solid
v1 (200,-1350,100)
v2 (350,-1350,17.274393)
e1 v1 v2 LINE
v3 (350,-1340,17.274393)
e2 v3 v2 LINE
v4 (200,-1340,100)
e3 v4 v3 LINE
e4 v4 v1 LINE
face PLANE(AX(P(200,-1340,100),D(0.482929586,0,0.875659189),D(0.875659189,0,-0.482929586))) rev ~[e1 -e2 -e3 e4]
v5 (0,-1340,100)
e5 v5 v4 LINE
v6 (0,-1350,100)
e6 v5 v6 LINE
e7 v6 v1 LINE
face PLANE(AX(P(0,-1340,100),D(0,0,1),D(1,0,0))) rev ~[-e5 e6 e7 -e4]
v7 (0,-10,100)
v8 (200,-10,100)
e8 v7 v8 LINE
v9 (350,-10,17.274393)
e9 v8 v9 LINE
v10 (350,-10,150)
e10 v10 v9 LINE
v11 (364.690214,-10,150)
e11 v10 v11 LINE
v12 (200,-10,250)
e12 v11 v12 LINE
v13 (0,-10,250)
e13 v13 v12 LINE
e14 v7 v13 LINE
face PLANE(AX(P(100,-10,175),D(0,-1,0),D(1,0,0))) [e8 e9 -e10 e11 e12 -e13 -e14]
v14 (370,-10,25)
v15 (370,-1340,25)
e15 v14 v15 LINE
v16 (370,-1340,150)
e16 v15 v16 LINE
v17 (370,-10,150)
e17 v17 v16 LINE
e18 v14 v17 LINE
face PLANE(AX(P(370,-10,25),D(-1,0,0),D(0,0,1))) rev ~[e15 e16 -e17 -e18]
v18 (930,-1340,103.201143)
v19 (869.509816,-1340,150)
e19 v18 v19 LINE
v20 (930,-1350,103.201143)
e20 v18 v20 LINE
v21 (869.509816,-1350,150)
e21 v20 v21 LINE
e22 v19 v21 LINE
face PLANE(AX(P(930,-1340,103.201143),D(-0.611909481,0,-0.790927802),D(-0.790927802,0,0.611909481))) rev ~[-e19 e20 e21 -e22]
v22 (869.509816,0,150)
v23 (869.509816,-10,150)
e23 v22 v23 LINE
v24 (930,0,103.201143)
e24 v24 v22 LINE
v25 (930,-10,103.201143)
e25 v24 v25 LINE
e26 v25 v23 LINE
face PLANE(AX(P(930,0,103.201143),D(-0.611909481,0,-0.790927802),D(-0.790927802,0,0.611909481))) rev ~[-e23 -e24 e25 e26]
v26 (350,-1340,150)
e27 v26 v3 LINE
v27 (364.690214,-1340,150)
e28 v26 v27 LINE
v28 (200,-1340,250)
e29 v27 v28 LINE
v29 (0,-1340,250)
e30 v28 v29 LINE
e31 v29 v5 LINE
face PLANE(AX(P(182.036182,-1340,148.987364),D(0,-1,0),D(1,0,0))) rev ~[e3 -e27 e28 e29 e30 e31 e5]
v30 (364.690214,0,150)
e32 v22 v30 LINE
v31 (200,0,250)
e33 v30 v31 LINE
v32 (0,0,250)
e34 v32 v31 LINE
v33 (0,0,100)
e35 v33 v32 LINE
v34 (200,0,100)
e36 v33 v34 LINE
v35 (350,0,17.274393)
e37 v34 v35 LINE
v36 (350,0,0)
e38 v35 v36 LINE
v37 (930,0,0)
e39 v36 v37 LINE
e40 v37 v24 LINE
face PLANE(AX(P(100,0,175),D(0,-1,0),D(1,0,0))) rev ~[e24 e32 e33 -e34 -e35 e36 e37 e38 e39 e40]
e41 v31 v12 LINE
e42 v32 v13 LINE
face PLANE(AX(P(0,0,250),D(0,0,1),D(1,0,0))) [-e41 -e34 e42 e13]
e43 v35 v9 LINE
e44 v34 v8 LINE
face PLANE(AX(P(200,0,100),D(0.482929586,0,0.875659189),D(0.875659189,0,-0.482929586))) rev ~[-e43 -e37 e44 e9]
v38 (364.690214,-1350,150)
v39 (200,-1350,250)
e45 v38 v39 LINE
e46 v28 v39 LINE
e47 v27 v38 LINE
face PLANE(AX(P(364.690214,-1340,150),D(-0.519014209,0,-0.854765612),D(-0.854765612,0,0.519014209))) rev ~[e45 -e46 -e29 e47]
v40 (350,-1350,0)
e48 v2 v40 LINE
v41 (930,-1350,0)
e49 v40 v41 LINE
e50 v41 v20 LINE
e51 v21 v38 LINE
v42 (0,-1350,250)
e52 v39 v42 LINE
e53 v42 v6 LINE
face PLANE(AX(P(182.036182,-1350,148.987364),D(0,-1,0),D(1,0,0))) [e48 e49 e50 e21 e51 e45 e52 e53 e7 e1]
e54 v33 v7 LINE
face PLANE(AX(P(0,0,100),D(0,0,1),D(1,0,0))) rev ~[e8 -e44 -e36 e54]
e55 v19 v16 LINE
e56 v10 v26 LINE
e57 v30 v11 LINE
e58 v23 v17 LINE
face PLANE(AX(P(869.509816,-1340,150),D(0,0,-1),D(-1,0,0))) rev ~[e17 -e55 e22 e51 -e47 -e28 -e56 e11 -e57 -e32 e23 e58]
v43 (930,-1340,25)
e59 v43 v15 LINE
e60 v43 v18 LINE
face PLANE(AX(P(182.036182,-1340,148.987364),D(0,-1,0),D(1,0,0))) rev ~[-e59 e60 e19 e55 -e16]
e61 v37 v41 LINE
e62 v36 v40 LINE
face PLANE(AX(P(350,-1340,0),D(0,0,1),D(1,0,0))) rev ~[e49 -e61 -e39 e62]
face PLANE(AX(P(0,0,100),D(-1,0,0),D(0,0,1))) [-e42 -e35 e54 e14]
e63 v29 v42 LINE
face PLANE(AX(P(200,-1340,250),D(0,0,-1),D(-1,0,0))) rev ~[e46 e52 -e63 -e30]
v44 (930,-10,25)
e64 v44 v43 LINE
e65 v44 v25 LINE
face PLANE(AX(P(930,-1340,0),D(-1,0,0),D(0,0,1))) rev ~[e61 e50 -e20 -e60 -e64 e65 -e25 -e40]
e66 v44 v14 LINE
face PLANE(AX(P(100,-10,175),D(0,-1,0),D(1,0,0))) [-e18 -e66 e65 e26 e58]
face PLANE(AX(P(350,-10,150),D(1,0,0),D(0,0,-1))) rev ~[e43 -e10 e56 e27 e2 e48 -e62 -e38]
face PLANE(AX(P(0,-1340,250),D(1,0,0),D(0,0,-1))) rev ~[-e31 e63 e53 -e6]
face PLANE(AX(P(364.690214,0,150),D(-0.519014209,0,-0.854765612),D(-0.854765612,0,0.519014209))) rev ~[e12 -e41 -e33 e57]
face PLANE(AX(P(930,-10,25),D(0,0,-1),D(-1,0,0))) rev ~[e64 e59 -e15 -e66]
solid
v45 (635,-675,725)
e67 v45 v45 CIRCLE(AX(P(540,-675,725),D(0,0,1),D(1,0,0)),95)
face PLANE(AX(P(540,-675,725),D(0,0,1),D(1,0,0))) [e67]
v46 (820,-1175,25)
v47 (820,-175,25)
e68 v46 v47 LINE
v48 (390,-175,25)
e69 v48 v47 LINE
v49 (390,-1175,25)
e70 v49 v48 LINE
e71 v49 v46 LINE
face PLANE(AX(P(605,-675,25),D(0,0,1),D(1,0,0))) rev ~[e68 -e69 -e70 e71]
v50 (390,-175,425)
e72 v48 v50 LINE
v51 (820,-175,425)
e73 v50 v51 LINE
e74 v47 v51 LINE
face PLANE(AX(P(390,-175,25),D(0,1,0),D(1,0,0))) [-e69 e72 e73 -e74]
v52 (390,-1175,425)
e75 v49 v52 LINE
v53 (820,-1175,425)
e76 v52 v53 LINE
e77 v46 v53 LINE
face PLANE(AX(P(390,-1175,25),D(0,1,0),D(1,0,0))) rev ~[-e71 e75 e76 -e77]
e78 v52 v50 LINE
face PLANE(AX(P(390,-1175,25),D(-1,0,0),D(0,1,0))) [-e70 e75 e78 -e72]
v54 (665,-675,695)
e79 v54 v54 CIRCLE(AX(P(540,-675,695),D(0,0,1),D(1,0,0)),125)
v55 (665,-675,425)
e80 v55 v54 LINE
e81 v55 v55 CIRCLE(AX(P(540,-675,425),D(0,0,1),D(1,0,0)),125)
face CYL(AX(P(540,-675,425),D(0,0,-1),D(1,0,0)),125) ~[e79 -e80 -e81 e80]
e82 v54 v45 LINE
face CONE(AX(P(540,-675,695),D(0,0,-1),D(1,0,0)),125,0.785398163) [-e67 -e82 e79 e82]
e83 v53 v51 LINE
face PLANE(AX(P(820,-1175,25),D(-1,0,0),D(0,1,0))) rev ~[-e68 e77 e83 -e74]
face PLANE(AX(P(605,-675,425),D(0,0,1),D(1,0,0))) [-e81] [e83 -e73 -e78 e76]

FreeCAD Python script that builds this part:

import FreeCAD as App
import Part
import Sketcher

V = App.Vector


def edges_at(feature, points):
    """Names of the edges that pass closest to the given points."""
    edges = feature.Shape.Edges
    near = lambda p: min(range(len(edges)), key=lambda i: edges[i].distToShape(Part.Vertex(*p))[0])
    return sorted({f"Edge{near(p) + 1}" for p in points})


def add_polygon(sketch, points):
    """Adds a closed chain of lines whose ends are joined by coincident constraints."""
    first, n = sketch.GeometryCount, len(points)
    for a, b in zip(points, points[1:] + points[:1]):
        sketch.addGeometry(Part.LineSegment(App.Vector(*a, 0), App.Vector(*b, 0)), False)
    for i in range(n):
        sketch.addConstraint(Sketcher.Constraint("Coincident", first + i, 2, first + (i + 1) % n, 1))

doc = App.newDocument("Part")
body = doc.addObject("PartDesign::Body", "Body")

sketch1 = body.newObject("Sketcher::SketchObject", "Sketch")
sketch1.AttachmentSupport = (doc.getObject("XZ_Plane"), [""])
sketch1.MapMode = "FlatFace"
add_polygon(sketch1, [(0, 250), (0, 100), (200, 100), (350, 17), (350, 0), (930, 0), (930, 103), (870, 150), (365, 150), (200, 250)])
sketch1.addConstraint([
    Sketcher.Constraint("Vertical", 0),
    Sketcher.Constraint("Horizontal", 1),
    Sketcher.Constraint("Vertical", 3),
    Sketcher.Constraint("Horizontal", 4),
    Sketcher.Constraint("Vertical", 5),
    Sketcher.Constraint("Horizontal", 7),
    Sketcher.Constraint("Horizontal", 9),
    Sketcher.Constraint("PointOnObject", 0, 2, -2),
    Sketcher.Constraint("PointOnObject", 3, 2, -1),
    Sketcher.Constraint("Vertical", 1, 2, 8, 2),
    Sketcher.Constraint("DistanceX", 1, 1, 1, 2, 200.0),
    Sketcher.Constraint("DistanceX", 4, 1, 4, 2, 580.0),
    Sketcher.Constraint("DistanceY", 0, 2, 0, 1, 150.0),
    Sketcher.Constraint("DistanceY", -1, 1, 0, 2, 100.0),
    Sketcher.Constraint("DistanceX", -1, 1, 2, 2, 350.0),
    Sketcher.Constraint("DistanceY", -1, 1, 6, 2, 150.0),
    Sketcher.Constraint("DistanceX", 7, 2, 7, 1, 504.819602),
    Sketcher.Constraint("Distance", 2, 171.299521),
    Sketcher.Constraint("DistanceY", 5, 1, 5, 2, 103.201143),
    Sketcher.Constraint("Distance", 6, 76.480033),
])
pad1 = body.newObject("PartDesign::Pad", "Pad")
pad1.Profile = sketch1
pad1.Length = 10

sketch2 = body.newObject("Sketcher::SketchObject", "Sketch001")
sketch2.AttachmentSupport = (doc.getObject("XZ_Plane"), [""])
sketch2.MapMode = "FlatFace"
sketch2.AttachmentOffset = App.Placement(V(0, 0, 10), App.Rotation())
add_polygon(sketch2, [(350, 0), (930, 0), (930, 25), (370, 25), (370, 150), (350, 150)])
sketch2.addConstraint([
    Sketcher.Constraint("Horizontal", 0),
    Sketcher.Constraint("Vertical", 1),
    Sketcher.Constraint("Horizontal", 2),
    Sketcher.Constraint("Vertical", 3),
    Sketcher.Constraint("Horizontal", 4),
    Sketcher.Constraint("Vertical", 5),
    Sketcher.Constraint("PointOnObject", 0, 2, -1),
    Sketcher.Constraint("DistanceX", 0, 1, 0, 2, 580.0),
    Sketcher.Constraint("DistanceX", 2, 2, 2, 1, 560.0),
    Sketcher.Constraint("DistanceY", 1, 1, 1, 2, 25.0),
    Sketcher.Constraint("DistanceY", 3, 1, 3, 2, 125.0),
    Sketcher.Constraint("DistanceX", -1, 1, 0, 2, 930.0),
])
pad2 = body.newObject("PartDesign::Pad", "Pad001")
pad2.Profile = sketch2
pad2.Length = 1330

sketch3 = body.newObject("Sketcher::SketchObject", "Sketch002")
sketch3.AttachmentSupport = (doc.getObject("XZ_Plane"), [""])
sketch3.MapMode = "FlatFace"
sketch3.AttachmentOffset = App.Placement(V(0, 0, 1340), App.Rotation())
add_polygon(sketch3, [(200, 250), (0, 250), (0, 100), (200, 100), (350, 17), (350, 0), (930, 0), (930, 103), (870, 150), (365, 150)])
sketch3.addConstraint([
    Sketcher.Constraint("Horizontal", 0),
    Sketcher.Constraint("Vertical", 1),
    Sketcher.Constraint("Horizontal", 2),
    Sketcher.Constraint("Vertical", 4),
    Sketcher.Constraint("Horizontal", 5),
    Sketcher.Constraint("Vertical", 6),
    Sketcher.Constraint("Horizontal", 8),
    Sketcher.Constraint("PointOnObject", 0, 2, -2),
    Sketcher.Constraint("PointOnObject", 4, 2, -1),
    Sketcher.Constraint("Vertical", 2, 2, 9, 2),
    Sketcher.Constraint("DistanceX", 0, 2, 0, 1, 200.0),
    Sketcher.Constraint("DistanceX", 5, 1, 5, 2, 580.0),
    Sketcher.Constraint("DistanceY", 1, 2, 1, 1, 150.0),
    Sketcher.Constraint("DistanceY", -1, 1, 0, 2, 250.0),
    Sketcher.Constraint("DistanceX", -1, 1, 3, 2, 350.0),
    Sketcher.Constraint("DistanceY", -1, 1, 7, 2, 150.0),
    Sketcher.Constraint("DistanceX", 8, 2, 8, 1, 504.819602),
    Sketcher.Constraint("Distance", 3, 171.299521),
    Sketcher.Constraint("DistanceY", 6, 1, 6, 2, 103.201143),
    Sketcher.Constraint("Distance", 7, 76.480033),
])
pad3 = body.newObject("PartDesign::Pad", "Pad002")
pad3.Profile = sketch3
pad3.Length = 10
body2 = doc.addObject("PartDesign::Body", "Body001")

sketch4 = body2.newObject("Sketcher::SketchObject", "Sketch003")
sketch4.AttachmentSupport = (doc.getObject("XY_Plane001"), [""])
sketch4.MapMode = "FlatFace"
sketch4.AttachmentOffset = App.Placement(V(0, 0, 25), App.Rotation())
add_polygon(sketch4, [(390, -175), (390, -1175), (820, -1175), (820, -175)])
sketch4.addConstraint([
    Sketcher.Constraint("Vertical", 0),
    Sketcher.Constraint("Horizontal", 1),
    Sketcher.Constraint("Vertical", 2),
    Sketcher.Constraint("Horizontal", 3),
    Sketcher.Constraint("DistanceX", 1, 1, 1, 2, 430.0),
    Sketcher.Constraint("DistanceY", 0, 2, 0, 1, 1000.0),
    Sketcher.Constraint("DistanceX", -1, 1, 0, 2, 390.0),
    Sketcher.Constraint("DistanceY", 0, 2, -1, 1, 1175.0),
])
pad4 = body2.newObject("PartDesign::Pad", "Pad003")
pad4.Profile = sketch4
pad4.Length = 400

sketch5 = body2.newObject("Sketcher::SketchObject", "Sketch004")
sketch5.AttachmentSupport = (doc.getObject("XY_Plane001"), [""])
sketch5.MapMode = "FlatFace"
sketch5.AttachmentOffset = App.Placement(V(0, 0, 425), App.Rotation())
sketch5.addGeometry(Part.Circle(V(540, -675, 0), V(0, 0, 1), 125), False)
sketch5.addConstraint([
    Sketcher.Constraint("Diameter", 0, 250.0),
    Sketcher.Constraint("DistanceX", -1, 1, 0, 3, 540.0),
    Sketcher.Constraint("DistanceY", 0, 3, -1, 1, 675.0),
])
pad5 = body2.newObject("PartDesign::Pad", "Pad004")
pad5.Profile = sketch5
pad5.Length = 300
doc.recompute()

chamfer = body2.newObject("PartDesign::Chamfer", "Chamfer")
chamfer.Base = (pad5, edges_at(pad5, [(415, -675, 725)]))
chamfer.Size = 30

doc.recompute()
